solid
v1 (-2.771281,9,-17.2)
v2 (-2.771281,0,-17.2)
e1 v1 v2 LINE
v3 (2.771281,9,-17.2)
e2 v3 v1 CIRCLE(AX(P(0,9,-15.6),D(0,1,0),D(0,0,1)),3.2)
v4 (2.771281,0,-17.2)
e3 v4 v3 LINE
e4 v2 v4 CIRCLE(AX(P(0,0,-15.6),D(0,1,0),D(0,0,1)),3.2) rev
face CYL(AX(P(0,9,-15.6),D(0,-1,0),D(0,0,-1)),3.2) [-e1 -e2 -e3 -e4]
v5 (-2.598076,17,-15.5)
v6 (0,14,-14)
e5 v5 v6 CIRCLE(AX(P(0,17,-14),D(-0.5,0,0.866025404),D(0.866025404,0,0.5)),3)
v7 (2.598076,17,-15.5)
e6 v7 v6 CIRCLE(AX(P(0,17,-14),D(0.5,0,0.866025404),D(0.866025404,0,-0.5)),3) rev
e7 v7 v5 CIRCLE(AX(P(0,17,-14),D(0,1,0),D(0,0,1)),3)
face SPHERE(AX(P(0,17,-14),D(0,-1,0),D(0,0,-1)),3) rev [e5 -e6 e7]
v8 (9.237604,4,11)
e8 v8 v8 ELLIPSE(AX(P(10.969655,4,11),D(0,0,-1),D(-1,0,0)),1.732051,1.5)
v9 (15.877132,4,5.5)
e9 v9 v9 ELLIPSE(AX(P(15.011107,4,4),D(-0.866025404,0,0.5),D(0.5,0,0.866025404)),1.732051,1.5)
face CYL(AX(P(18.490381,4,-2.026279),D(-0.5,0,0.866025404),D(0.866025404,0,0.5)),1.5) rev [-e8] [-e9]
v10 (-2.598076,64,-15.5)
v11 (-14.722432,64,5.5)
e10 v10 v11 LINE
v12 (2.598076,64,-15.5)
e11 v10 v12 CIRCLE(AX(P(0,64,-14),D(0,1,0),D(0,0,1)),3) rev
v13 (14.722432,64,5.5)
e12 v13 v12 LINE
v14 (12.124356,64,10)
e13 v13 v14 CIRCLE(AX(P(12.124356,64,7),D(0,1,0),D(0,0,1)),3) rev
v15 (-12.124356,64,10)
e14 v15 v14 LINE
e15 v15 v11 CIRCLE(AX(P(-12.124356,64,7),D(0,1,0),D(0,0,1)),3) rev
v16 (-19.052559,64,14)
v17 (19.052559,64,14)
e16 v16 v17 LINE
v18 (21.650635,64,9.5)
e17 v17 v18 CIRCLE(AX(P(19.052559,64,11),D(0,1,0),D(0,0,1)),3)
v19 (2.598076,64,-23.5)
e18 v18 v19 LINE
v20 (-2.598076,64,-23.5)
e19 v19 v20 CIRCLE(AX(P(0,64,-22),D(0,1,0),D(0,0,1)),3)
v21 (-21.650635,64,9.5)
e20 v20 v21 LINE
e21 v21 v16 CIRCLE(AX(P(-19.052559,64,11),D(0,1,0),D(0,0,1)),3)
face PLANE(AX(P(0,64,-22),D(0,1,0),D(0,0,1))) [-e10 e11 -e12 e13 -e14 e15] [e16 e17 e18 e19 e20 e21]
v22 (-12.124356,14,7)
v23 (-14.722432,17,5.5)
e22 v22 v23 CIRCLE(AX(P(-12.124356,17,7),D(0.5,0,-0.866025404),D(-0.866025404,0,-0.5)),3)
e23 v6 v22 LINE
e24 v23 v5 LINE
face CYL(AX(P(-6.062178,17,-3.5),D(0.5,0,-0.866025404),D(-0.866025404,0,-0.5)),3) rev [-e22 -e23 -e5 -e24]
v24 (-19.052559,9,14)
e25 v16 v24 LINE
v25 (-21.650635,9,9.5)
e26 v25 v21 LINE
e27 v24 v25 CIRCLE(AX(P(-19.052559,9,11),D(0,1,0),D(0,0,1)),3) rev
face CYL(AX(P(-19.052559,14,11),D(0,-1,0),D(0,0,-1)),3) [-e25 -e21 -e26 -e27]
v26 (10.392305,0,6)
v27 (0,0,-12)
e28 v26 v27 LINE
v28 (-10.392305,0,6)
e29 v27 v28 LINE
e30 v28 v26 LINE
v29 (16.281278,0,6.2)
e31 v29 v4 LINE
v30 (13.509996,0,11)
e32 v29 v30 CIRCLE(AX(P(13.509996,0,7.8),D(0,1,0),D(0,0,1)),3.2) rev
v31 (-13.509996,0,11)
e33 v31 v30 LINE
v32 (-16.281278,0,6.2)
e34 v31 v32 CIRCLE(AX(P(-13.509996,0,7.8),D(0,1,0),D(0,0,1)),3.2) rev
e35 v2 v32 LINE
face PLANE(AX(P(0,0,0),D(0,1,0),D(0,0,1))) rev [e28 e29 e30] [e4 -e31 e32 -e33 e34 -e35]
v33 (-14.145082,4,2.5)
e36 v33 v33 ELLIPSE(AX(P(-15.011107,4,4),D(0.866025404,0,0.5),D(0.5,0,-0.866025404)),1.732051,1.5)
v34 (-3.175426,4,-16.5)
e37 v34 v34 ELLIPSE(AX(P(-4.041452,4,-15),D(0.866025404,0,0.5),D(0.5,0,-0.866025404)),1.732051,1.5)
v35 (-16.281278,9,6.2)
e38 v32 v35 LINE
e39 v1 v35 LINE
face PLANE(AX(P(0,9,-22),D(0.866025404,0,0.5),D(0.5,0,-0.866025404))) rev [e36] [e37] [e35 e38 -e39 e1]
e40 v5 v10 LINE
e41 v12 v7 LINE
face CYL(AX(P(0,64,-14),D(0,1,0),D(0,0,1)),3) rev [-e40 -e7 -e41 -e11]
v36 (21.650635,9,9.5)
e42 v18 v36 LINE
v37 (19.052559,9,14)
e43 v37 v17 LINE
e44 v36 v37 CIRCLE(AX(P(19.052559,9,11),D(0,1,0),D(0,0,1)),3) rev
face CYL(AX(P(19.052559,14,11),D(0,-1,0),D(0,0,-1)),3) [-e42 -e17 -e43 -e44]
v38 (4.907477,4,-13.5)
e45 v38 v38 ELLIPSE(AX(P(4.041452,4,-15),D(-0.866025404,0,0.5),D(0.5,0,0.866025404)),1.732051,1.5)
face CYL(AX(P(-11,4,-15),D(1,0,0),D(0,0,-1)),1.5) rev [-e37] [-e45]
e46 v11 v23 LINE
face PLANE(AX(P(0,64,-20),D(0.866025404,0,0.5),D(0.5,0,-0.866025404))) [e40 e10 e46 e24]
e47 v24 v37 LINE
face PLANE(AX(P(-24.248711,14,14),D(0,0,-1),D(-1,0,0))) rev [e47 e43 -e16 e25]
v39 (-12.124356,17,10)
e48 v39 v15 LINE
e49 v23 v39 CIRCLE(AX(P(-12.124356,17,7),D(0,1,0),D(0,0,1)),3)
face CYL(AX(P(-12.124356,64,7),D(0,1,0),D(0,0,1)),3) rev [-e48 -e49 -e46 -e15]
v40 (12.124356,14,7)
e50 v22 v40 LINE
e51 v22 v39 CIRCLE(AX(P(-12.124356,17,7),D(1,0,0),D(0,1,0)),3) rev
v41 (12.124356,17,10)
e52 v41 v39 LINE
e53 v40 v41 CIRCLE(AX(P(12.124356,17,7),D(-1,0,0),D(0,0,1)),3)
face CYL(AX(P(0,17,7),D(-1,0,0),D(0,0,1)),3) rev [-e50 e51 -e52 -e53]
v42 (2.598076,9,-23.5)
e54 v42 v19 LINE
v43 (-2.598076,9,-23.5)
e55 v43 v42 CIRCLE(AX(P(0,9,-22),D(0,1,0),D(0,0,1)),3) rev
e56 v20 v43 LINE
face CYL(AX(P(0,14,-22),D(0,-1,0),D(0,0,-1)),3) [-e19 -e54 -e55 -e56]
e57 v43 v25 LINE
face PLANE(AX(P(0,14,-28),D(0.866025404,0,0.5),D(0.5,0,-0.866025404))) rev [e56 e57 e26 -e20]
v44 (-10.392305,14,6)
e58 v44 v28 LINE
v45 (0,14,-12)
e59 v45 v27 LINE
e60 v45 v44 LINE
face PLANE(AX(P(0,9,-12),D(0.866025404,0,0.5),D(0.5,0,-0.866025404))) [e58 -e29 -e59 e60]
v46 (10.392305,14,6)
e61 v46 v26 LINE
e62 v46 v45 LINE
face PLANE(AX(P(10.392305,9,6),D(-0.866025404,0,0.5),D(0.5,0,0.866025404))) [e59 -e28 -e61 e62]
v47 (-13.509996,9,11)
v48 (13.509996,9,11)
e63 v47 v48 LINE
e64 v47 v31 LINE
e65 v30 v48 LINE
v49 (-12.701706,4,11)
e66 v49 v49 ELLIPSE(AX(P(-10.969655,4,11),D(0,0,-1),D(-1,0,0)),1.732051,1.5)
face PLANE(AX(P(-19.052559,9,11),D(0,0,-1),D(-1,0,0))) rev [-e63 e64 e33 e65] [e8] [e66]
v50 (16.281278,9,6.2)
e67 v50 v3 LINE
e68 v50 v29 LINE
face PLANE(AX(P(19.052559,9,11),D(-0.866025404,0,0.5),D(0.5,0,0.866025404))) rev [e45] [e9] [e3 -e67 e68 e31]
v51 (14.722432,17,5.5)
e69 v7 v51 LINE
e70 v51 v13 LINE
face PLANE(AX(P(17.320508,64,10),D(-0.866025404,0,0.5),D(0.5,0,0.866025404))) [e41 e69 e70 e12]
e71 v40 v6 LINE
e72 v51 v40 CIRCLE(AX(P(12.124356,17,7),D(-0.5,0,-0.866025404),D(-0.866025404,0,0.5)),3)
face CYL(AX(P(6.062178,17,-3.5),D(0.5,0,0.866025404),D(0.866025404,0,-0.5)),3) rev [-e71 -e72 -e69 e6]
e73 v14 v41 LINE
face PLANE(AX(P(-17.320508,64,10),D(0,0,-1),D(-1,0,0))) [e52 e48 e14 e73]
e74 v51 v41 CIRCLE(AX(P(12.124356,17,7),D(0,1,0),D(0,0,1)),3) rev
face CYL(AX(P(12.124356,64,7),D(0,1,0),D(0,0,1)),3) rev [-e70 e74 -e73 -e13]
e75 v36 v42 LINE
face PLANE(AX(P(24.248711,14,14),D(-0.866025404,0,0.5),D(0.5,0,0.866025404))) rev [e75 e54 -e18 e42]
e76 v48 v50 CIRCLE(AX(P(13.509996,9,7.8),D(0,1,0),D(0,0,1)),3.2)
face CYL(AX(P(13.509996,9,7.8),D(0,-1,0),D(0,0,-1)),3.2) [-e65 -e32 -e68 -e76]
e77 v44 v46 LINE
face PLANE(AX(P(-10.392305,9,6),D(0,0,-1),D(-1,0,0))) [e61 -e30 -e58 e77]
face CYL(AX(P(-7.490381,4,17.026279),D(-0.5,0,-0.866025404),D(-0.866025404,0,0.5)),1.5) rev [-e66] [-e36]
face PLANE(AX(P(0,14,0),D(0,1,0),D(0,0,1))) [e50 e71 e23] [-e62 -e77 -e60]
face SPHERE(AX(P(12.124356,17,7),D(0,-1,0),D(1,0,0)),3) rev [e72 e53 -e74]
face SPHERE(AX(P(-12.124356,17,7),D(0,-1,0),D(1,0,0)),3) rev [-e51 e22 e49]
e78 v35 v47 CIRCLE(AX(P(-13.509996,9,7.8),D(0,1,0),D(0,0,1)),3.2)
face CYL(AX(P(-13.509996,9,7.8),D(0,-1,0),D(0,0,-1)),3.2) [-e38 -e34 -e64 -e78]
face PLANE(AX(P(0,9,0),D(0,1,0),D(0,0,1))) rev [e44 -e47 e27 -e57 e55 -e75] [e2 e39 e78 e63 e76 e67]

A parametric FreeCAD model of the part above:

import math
import FreeCAD as App
import Part
import Sketcher
from FreeCAD import Vector
Q = App.Units.Quantity


def edges_at(feature, points):
    """Names of the edges that pass closest to the given points."""
    edges = feature.Shape.Edges
    near = lambda p: min(range(len(edges)), key=lambda i: edges[i].distToShape(Part.Vertex(*p))[0])
    return sorted({f"Edge{near(p) + 1}" for p in points})

doc = App.newDocument("Part")
params = doc.addObject("Spreadsheet::Sheet", "Params")
for row, (alias, value) in enumerate([
    ("pad1_length", "9 mm"),
    ("pad2_length", "5 mm"),
    ("fillet_radius", "3.2 mm"),
    ("sketch3_diameter", "3 mm"),
    ("pocket1_length", "18 mm"),
    ("fillet2_radius", "3 mm"),
    ("sketch4_radius", "3 mm"),
    ("pad3_length", "50 mm"),
    ("fillet3_radius", "3 mm"),
], start=1):
    params.set(f"A{row}", alias)
    params.set(f"B{row}", "=" + value)
    params.setAlias(f"B{row}", alias)

body = doc.addObject("PartDesign::Body", "Body")

# Sketch on XZ plane
sketch1 = body.newObject("Sketcher::SketchObject", "Sketch")
sketch1.AttachmentSupport = (doc.getObject("XZ_Plane"), [""])
sketch1.MapMode = "FlatFace"
sketch1.addGeometry(Part.LineSegment(Vector(0, -22, 0), Vector(-19.052559, 11, 0)), False)
sketch1.addGeometry(Part.LineSegment(Vector(-19.052559, 11, 0), Vector(19.052559, 11, 0)), False)
sketch1.addGeometry(Part.LineSegment(Vector(19.052559, 11, 0), Vector(0, -22, 0)), False)
sketch1.addGeometry(Part.LineSegment(Vector(-10.392305, 6, 0), Vector(0, -12, 0)), False)
sketch1.addGeometry(Part.LineSegment(Vector(0, -12, 0), Vector(10.392305, 6, 0)), False)
sketch1.addGeometry(Part.LineSegment(Vector(10.392305, 6, 0), Vector(-10.392305, 6, 0)), False)
sketch1.addConstraint(Sketcher.Constraint("Coincident", 0, 2, 1, 1))
sketch1.addConstraint(Sketcher.Constraint("Coincident", 1, 2, 2, 1))
sketch1.addConstraint(Sketcher.Constraint("Coincident", 2, 2, 0, 1))
sketch1.addConstraint(Sketcher.Constraint("Coincident", 3, 2, 4, 1))
sketch1.addConstraint(Sketcher.Constraint("Coincident", 4, 2, 5, 1))
sketch1.addConstraint(Sketcher.Constraint("Coincident", 5, 2, 3, 1))
sketch1.addConstraint(Sketcher.Constraint("Horizontal", 1))
sketch1.addConstraint(Sketcher.Constraint("Horizontal", 5))
sketch1.addConstraint(Sketcher.Constraint("PointOnObject", 2, 2, -2))
sketch1.addConstraint(Sketcher.Constraint("PointOnObject", 3, 2, -2))
sketch1.addConstraint(Sketcher.Constraint("Parallel", 0, 3))
sketch1.addConstraint(Sketcher.Constraint("Parallel", 2, 4))
sketch1.addConstraint(Sketcher.Constraint("Equal", 0, 2))
sketch1.addConstraint(Sketcher.Constraint("Angle", 0, Q("120 deg")))
sketch1.addConstraint(Sketcher.Constraint("DistanceY", -1, 1, 0, 2, Q("11 mm")))
sketch1.addConstraint(Sketcher.Constraint("DistanceY", 2, 2, -1, 1, Q("22 mm")))
sketch1.addConstraint(Sketcher.Constraint("DistanceY", 3, 2, -1, 1, Q("12 mm")))
sketch1.addConstraint(Sketcher.Constraint("DistanceY", -1, 1, 4, 2, Q("6 mm")))
pad1 = body.newObject("PartDesign::Pad", "Pad")
pad1.Profile = sketch1
pad1.setExpression("Length", "Params.pad1_length")
pad1.Reversed = True

# Sketch on XZ plane
sketch2 = body.newObject("Sketcher::SketchObject", "Sketch001")
sketch2.AttachmentSupport = (doc.getObject("XZ_Plane"), [""])
sketch2.MapMode = "FlatFace"
sketch2.AttachmentOffset = App.Placement(Vector(0, 0, -9), App.Rotation())
sketch2.addGeometry(Part.LineSegment(Vector(0, -28, 0), Vector(-24.248711, 14, 0)), False)
sketch2.addGeometry(Part.LineSegment(Vector(-24.248711, 14, 0), Vector(24.248711, 14, 0)), False)
sketch2.addGeometry(Part.LineSegment(Vector(24.248711, 14, 0), Vector(0, -28, 0)), False)
sketch2.addGeometry(Part.LineSegment(Vector(-10.392305, 6, 0), Vector(0, -12, 0)), False)
sketch2.addGeometry(Part.LineSegment(Vector(0, -12, 0), Vector(10.392305, 6, 0)), False)
sketch2.addGeometry(Part.LineSegment(Vector(10.392305, 6, 0), Vector(-10.392305, 6, 0)), False)
sketch2.addConstraint(Sketcher.Constraint("Coincident", 0, 2, 1, 1))
sketch2.addConstraint(Sketcher.Constraint("Coincident", 1, 2, 2, 1))
sketch2.addConstraint(Sketcher.Constraint("Coincident", 2, 2, 0, 1))
sketch2.addConstraint(Sketcher.Constraint("Coincident", 3, 2, 4, 1))
sketch2.addConstraint(Sketcher.Constraint("Coincident", 4, 2, 5, 1))
sketch2.addConstraint(Sketcher.Constraint("Coincident", 5, 2, 3, 1))
sketch2.addConstraint(Sketcher.Constraint("Horizontal", 1))
sketch2.addConstraint(Sketcher.Constraint("Horizontal", 5))
sketch2.addConstraint(Sketcher.Constraint("PointOnObject", 2, 2, -2))
sketch2.addConstraint(Sketcher.Constraint("PointOnObject", 3, 2, -2))
sketch2.addConstraint(Sketcher.Constraint("Parallel", 0, 3))
sketch2.addConstraint(Sketcher.Constraint("Parallel", 2, 4))
sketch2.addConstraint(Sketcher.Constraint("Equal", 0, 2))
sketch2.addConstraint(Sketcher.Constraint("Angle", 0, Q("120 deg")))
sketch2.addConstraint(Sketcher.Constraint("DistanceY", -1, 1, 0, 2, Q("14 mm")))
sketch2.addConstraint(Sketcher.Constraint("DistanceY", 2, 2, -1, 1, Q("28 mm")))
sketch2.addConstraint(Sketcher.Constraint("DistanceY", 3, 2, -1, 1, Q("12 mm")))
sketch2.addConstraint(Sketcher.Constraint("DistanceY", -1, 1, 4, 2, Q("6 mm")))
pad2 = body.newObject("PartDesign::Pad", "Pad001")
pad2.Profile = sketch2
pad2.setExpression("Length", "Params.pad2_length")
pad2.Reversed = True
doc.recompute()

fillet = body.newObject("PartDesign::Fillet", "Fillet")
fillet.Base = (pad2, edges_at(pad2, [(19.053, 4.5, 11), (-19.053, 4.5, 11), (0, 4.5, -22)]))
fillet.setExpression("Radius", "Params.fillet_radius")

# Sketch on YZ plane
sketch3 = body.newObject("Sketcher::SketchObject", "Sketch002")
sketch3.AttachmentSupport = (doc.getObject("YZ_Plane"), [""])
sketch3.MapMode = "FlatFace"
sketch3.AttachmentOffset = App.Placement(Vector(0, 0, 7), App.Rotation())
sketch3.addGeometry(Part.Circle(Vector(4, -15, 0), Vector(0, 0, 1), 1.5), False)
sketch3.addConstraint(Sketcher.Constraint("Diameter", 0, Q("3 mm")))
sketch3.addConstraint(Sketcher.Constraint("DistanceX", -1, 1, 0, 3, Q("4 mm")))
sketch3.addConstraint(Sketcher.Constraint("DistanceY", 0, 3, -1, 1, Q("15 mm")))
sketch3.setExpression("Constraints[0]", "Params.sketch3_diameter")
pocket1 = body.newObject("PartDesign::Pocket", "Pocket")
pocket1.Profile = sketch3
pocket1.setExpression("Length", "Params.pocket1_length")
doc.recompute()

polarpattern = body.newObject("PartDesign::PolarPattern", "PolarPattern")
polarpattern.Originals = [pocket1]
polarpattern.Axis = (doc.getObject("Y_Axis"), [""])
polarpattern.Angle = 360
polarpattern.Occurrences = 3
body.Tip = polarpattern
doc.recompute()

fillet2 = body.newObject("PartDesign::Fillet", "Fillet001")
fillet2.Base = (polarpattern, edges_at(polarpattern, [(24.249, 11.5, 14), (0, 11.5, -28), (-24.249, 11.5, 14)]))
fillet2.setExpression("Radius", "Params.fillet2_radius")

# Sketch on XZ plane
sketch4 = body.newObject("Sketcher::SketchObject", "Sketch003")
sketch4.AttachmentSupport = (doc.getObject("XZ_Plane"), [""])
sketch4.MapMode = "FlatFace"
sketch4.AttachmentOffset = App.Placement(Vector(0, 0, -64), App.Rotation())
sketch4.addGeometry(Part.LineSegment(Vector(-2.598076, -23.5, 0), Vector(-21.650635, 9.5, 0)), False)
sketch4.addGeometry(Part.ArcOfCircle(Part.Circle(Vector(-19.052559, 11, 0), Vector(0, 0, 1), 3), math.radians(90), math.radians(210)), False)
sketch4.addGeometry(Part.LineSegment(Vector(-19.052559, 14, 0), Vector(19.052559, 14, 0)), False)
sketch4.addGeometry(Part.ArcOfCircle(Part.Circle(Vector(19.052559, 11, 0), Vector(0, 0, 1), 3), math.radians(-30), math.radians(90)), False)
sketch4.addGeometry(Part.LineSegment(Vector(21.650635, 9.5, 0), Vector(2.598076, -23.5, 0)), False)
sketch4.addGeometry(Part.ArcOfCircle(Part.Circle(Vector(0, -22, 0), Vector(0, 0, 1), 3), math.radians(-150), math.radians(-30)), False)
sketch4.addGeometry(Part.LineSegment(Vector(-17.320508, 10, 0), Vector(0, -20, 0)), False)
sketch4.addGeometry(Part.LineSegment(Vector(0, -20, 0), Vector(17.320508, 10, 0)), False)
sketch4.addGeometry(Part.LineSegment(Vector(17.320508, 10, 0), Vector(-17.320508, 10, 0)), False)
sketch4.addConstraint(Sketcher.Constraint("Tangent", 0, 2, 1, 2))
sketch4.addConstraint(Sketcher.Constraint("Tangent", 1, 1, 2, 1))
sketch4.addConstraint(Sketcher.Constraint("Tangent", 2, 2, 3, 2))
sketch4.addConstraint(Sketcher.Constraint("Tangent", 3, 1, 4, 1))
sketch4.addConstraint(Sketcher.Constraint("Tangent", 4, 2, 5, 2))
sketch4.addConstraint(Sketcher.Constraint("Tangent", 5, 1, 0, 1))
sketch4.addConstraint(Sketcher.Constraint("Coincident", 6, 2, 7, 1))
sketch4.addConstraint(Sketcher.Constraint("Coincident", 7, 2, 8, 1))
sketch4.addConstraint(Sketcher.Constraint("Coincident", 8, 2, 6, 1))
sketch4.addConstraint(Sketcher.Constraint("Horizontal", 2))
sketch4.addConstraint(Sketcher.Constraint("Horizontal", 8))
sketch4.addConstraint(Sketcher.Constraint("Equal", 1, 3))
sketch4.addConstraint(Sketcher.Constraint("Equal", 3, 5))
sketch4.addConstraint(Sketcher.Constraint("Symmetric", 0, 2, 3, 1, -2))
sketch4.addConstraint(Sketcher.Constraint("PointOnObject", 6, 2, -2))
sketch4.addConstraint(Sketcher.Constraint("Parallel", 0, 6))
sketch4.addConstraint(Sketcher.Constraint("Parallel", 4, 7))
sketch4.addConstraint(Sketcher.Constraint("Radius", 1, Q("3 mm")))
sketch4.addConstraint(Sketcher.Constraint("Angle", 0, Q("120 deg")))
sketch4.addConstraint(Sketcher.Constraint("DistanceY", -1, 1, 1, 3, Q("11 mm")))
sketch4.addConstraint(Sketcher.Constraint("DistanceY", 5, 3, -1, 1, Q("22 mm")))
sketch4.addConstraint(Sketcher.Constraint("DistanceY", 6, 2, -1, 1, Q("20 mm")))
sketch4.addConstraint(Sketcher.Constraint("DistanceY", -1, 1, 7, 2, Q("10 mm")))
sketch4.setExpression("Constraints[17]", "Params.sketch4_radius")
pad3 = body.newObject("PartDesign::Pad", "Pad002")
pad3.Profile = sketch4
pad3.setExpression("Length", "Params.pad3_length")
doc.recompute()

fillet3 = body.newObject("PartDesign::Fillet", "Fillet002")
fillet3.Base = (pad3, edges_at(pad3, [
    (8.66, 14, -5),
    (-8.66, 14, -5),
    (0, 14, 10),
    (0, 39, -20),
    (-17.321, 39, 10),
    (17.321, 39, 10),
]))
fillet3.setExpression("Radius", "Params.fillet3_radius")

doc.recompute()
